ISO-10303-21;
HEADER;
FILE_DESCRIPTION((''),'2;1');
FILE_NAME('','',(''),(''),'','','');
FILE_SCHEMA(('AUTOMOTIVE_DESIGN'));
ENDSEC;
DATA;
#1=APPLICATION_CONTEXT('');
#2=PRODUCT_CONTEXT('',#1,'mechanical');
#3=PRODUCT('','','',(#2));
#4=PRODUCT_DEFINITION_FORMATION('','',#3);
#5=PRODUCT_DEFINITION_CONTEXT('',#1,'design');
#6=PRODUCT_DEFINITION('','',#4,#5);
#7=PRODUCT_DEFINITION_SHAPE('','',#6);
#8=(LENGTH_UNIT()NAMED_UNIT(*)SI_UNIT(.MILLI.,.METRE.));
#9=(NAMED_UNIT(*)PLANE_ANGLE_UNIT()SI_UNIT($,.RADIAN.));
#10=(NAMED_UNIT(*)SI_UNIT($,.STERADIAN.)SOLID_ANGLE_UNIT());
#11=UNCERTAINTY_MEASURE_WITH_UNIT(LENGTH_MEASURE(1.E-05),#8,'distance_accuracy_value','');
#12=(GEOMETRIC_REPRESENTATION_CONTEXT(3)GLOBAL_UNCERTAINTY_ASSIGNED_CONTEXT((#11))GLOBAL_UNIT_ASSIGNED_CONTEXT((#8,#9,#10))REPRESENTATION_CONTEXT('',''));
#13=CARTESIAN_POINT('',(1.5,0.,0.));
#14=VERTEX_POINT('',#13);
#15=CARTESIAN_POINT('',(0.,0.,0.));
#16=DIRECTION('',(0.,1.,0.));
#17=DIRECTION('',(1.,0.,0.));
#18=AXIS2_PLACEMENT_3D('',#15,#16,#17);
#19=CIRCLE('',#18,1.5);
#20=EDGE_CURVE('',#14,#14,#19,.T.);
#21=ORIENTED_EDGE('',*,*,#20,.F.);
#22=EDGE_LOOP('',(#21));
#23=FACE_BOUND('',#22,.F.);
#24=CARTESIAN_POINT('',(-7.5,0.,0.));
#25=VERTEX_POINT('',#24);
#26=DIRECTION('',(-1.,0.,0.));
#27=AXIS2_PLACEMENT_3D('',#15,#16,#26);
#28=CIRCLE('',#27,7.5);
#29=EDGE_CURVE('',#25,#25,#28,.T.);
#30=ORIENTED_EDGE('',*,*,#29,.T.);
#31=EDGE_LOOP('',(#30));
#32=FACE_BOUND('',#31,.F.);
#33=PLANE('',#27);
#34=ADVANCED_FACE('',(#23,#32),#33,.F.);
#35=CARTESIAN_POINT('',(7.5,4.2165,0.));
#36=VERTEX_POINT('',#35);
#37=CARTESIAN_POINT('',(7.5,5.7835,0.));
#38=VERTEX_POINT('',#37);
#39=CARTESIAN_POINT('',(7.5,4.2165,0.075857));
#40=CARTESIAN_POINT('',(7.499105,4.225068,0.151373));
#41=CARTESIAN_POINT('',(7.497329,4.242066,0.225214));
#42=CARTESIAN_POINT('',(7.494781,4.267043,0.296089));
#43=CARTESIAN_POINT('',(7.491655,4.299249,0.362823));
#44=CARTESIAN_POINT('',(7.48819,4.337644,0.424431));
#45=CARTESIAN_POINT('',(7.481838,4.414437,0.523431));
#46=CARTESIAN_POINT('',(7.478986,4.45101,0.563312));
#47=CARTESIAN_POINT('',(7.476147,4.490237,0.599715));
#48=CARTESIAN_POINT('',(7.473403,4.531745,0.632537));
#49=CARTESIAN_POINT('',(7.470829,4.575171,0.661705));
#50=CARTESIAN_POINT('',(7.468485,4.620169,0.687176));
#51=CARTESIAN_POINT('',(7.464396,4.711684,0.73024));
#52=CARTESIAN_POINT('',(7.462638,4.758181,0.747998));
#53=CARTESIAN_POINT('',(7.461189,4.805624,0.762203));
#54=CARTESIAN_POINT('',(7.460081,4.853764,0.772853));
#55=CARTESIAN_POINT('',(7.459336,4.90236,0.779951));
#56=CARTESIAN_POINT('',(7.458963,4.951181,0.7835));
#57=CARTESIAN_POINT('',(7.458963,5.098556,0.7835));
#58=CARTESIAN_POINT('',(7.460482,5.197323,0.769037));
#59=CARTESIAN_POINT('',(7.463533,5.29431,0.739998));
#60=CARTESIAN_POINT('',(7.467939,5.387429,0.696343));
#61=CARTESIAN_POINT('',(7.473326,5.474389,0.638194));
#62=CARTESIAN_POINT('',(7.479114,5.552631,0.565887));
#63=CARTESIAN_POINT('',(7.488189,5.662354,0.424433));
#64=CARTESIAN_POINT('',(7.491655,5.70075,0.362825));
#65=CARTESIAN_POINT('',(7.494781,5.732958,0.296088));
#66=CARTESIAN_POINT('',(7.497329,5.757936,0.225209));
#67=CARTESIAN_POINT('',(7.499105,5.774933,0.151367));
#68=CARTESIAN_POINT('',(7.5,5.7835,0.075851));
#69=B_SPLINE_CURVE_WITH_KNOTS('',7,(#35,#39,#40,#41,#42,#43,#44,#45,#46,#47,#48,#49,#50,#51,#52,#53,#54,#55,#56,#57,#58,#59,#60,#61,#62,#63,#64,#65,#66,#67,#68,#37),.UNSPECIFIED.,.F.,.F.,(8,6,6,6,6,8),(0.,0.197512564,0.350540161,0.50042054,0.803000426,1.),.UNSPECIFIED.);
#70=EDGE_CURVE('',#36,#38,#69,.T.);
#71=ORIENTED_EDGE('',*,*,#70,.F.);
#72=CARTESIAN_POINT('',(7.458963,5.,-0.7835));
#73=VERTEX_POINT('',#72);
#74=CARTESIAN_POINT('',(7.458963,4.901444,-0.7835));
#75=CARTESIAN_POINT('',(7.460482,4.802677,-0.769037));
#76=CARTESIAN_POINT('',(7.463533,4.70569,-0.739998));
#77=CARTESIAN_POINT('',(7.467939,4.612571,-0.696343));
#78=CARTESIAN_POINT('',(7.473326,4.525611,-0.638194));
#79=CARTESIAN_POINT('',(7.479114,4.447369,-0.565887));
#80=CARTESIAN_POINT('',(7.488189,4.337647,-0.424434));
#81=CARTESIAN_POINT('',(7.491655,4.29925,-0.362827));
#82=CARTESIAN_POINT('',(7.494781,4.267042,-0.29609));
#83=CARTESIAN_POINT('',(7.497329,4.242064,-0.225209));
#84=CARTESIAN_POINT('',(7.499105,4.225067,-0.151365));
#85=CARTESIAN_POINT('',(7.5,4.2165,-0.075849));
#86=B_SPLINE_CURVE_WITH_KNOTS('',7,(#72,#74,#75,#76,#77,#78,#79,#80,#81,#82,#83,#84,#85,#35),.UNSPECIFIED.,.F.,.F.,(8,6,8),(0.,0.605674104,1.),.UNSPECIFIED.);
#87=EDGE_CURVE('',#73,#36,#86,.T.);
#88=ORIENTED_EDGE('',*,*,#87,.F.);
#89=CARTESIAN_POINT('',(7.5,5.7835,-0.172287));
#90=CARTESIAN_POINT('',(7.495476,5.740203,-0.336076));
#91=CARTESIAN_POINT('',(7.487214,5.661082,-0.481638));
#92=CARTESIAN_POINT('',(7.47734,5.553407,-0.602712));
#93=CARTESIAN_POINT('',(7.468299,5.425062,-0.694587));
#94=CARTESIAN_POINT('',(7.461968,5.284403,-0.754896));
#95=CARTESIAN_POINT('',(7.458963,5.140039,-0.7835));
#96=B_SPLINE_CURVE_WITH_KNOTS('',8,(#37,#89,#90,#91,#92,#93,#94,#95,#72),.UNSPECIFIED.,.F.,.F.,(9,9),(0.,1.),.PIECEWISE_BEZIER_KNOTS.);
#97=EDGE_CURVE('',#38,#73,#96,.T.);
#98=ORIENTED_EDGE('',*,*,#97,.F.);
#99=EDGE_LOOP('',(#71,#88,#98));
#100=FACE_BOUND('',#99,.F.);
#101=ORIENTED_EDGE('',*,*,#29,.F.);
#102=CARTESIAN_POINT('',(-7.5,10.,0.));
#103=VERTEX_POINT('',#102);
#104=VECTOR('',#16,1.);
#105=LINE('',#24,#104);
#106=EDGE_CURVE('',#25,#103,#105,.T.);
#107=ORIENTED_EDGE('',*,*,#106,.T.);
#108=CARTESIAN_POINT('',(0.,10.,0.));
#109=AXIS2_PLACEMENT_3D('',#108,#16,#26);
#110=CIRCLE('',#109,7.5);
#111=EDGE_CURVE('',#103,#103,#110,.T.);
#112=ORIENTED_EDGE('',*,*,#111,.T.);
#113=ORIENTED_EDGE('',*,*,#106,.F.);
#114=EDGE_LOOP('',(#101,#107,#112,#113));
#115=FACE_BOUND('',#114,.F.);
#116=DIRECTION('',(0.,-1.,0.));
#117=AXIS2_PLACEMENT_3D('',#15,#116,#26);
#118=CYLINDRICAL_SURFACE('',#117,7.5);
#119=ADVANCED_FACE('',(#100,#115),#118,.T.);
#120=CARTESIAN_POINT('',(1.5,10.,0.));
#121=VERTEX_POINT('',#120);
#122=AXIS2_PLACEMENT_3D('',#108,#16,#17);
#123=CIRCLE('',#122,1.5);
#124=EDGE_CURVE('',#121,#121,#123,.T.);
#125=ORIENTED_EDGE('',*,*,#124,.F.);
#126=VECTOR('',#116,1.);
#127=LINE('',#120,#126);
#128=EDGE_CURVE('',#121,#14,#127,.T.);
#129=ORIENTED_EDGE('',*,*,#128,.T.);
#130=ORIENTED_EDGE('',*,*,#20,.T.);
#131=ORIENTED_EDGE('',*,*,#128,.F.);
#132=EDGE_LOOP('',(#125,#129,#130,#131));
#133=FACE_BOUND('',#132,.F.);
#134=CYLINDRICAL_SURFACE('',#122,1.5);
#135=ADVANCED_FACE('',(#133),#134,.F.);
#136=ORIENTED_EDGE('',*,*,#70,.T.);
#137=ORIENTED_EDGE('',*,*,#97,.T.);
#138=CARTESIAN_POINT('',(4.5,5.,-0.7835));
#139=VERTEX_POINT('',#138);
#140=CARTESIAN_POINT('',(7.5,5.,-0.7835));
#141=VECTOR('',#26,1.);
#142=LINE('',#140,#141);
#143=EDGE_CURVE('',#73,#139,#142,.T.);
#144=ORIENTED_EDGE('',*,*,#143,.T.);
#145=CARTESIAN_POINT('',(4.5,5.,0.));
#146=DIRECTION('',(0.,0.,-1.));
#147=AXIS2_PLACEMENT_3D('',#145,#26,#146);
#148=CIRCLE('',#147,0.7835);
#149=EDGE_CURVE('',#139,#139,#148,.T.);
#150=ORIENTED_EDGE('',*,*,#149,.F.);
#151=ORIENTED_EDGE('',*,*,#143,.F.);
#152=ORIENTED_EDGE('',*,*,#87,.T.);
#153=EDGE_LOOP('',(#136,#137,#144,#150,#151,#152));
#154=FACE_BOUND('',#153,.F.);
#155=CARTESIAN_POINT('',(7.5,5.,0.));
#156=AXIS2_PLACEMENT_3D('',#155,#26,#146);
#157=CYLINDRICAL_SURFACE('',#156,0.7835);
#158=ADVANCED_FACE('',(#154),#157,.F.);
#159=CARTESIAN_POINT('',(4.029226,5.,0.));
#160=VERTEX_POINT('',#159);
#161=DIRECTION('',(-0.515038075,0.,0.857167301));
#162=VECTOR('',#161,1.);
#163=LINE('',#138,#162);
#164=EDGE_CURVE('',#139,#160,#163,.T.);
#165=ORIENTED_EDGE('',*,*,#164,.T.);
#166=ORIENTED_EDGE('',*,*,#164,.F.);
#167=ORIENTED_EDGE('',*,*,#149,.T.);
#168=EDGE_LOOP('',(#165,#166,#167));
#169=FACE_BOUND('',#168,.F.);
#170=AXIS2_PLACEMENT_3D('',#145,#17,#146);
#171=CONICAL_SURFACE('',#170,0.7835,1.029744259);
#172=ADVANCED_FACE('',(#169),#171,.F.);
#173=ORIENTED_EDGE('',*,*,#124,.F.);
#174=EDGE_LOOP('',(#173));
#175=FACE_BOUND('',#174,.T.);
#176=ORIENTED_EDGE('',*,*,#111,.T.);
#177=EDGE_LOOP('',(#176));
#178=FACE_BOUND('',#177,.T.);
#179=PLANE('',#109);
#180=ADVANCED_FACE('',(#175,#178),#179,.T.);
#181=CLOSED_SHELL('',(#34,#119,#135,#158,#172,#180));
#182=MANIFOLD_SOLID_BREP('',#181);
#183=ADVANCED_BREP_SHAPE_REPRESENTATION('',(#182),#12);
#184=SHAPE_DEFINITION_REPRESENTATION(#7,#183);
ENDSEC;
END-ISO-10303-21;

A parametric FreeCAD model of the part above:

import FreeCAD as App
import Part
import Sketcher

V = App.Vector

doc = App.newDocument("Part")
params = doc.addObject("Spreadsheet::Sheet", "Params")
for row, (alias, value) in enumerate([
    ("sketch1_diameter", "15 mm"),
    ("pad1_length", "10 mm"),
    ("sketch2_diameter", "3 mm"),
    ("pocket1_length", "10 mm"),
    ("hole_diameter", "1.567 mm"),
    ("hole_depth", "3 mm"),
], start=1):
    params.set(f"A{row}", alias)
    params.set(f"B{row}", "=" + value)
    params.setAlias(f"B{row}", alias)

body = doc.addObject("PartDesign::Body", "Body")

# Sketch on XZ plane
sketch1 = doc.addObject("Sketcher::SketchObject", "Sketch")
body.addObject(sketch1)
sketch1.AttachmentSupport = (doc.XZ_Plane, [""])
sketch1.MapMode = "FlatFace"
sketch1.addGeometry(Part.Circle(V(0, 0, 0), V(0, 0, 1), 8), False)
sketch1.addConstraint(Sketcher.Constraint("Coincident", 0, 3, -1, 1))
sketch1.addConstraint(Sketcher.Constraint("Diameter", 0, 15.0))
sketch1.setExpression("Constraints[1]", "Params.sketch1_diameter")
pad1 = doc.addObject("PartDesign::Pad", "Pad")
body.addObject(pad1)
pad1.Profile = sketch1
pad1.setExpression("Length", "Params.pad1_length")
pad1.Reversed = True

# Sketch on XZ plane
sketch2 = doc.addObject("Sketcher::SketchObject", "Sketch001")
body.addObject(sketch2)
sketch2.AttachmentSupport = (doc.XZ_Plane, [""])
sketch2.MapMode = "FlatFace"
sketch2.AttachmentOffset = App.Placement(V(0, 0, -10), App.Rotation())
sketch2.addGeometry(Part.Circle(V(0, 0, 0), V(0, 0, 1), 1.5), False)
sketch2.addConstraint(Sketcher.Constraint("Coincident", 0, 3, -1, 1))
sketch2.addConstraint(Sketcher.Constraint("Diameter", 0, 3.0))
sketch2.setExpression("Constraints[1]", "Params.sketch2_diameter")
pocket1 = doc.addObject("PartDesign::Pocket", "Pocket")
body.addObject(pocket1)
pocket1.Profile = sketch2
pocket1.setExpression("Length", "Params.pocket1_length")
pocket1.Reversed = True

# Sketch on YZ plane
sketch3 = doc.addObject("Sketcher::SketchObject", "Sketch002")
body.addObject(sketch3)
sketch3.AttachmentSupport = (doc.YZ_Plane, [""])
sketch3.MapMode = "FlatFace"
sketch3.AttachmentOffset = App.Placement(V(0, 0, 7.5), App.Rotation())
sketch3.addGeometry(Part.Circle(V(5, 0, 0), V(0, 0, 1), 0.8), False)
sketch3.addConstraint(Sketcher.Constraint("PointOnObject", 0, 3, -1))
sketch3.addConstraint(Sketcher.Constraint("Diameter", 0, 1.567))
sketch3.addConstraint(Sketcher.Constraint("DistanceX", -1, 1, 0, 3, 5.0))
doc.recompute()
hole = doc.addObject("PartDesign::Hole", "Hole")
body.addObject(hole)
hole.Profile = sketch3
hole.ThreadType = "None"
hole.setExpression("Diameter", "Params.hole_diameter")
hole.DepthType = "Dimension"
hole.setExpression("Depth", "Params.hole_depth")
hole.DrillPoint = "Angled"
hole.DrillPointAngle = 118

doc.recompute()
